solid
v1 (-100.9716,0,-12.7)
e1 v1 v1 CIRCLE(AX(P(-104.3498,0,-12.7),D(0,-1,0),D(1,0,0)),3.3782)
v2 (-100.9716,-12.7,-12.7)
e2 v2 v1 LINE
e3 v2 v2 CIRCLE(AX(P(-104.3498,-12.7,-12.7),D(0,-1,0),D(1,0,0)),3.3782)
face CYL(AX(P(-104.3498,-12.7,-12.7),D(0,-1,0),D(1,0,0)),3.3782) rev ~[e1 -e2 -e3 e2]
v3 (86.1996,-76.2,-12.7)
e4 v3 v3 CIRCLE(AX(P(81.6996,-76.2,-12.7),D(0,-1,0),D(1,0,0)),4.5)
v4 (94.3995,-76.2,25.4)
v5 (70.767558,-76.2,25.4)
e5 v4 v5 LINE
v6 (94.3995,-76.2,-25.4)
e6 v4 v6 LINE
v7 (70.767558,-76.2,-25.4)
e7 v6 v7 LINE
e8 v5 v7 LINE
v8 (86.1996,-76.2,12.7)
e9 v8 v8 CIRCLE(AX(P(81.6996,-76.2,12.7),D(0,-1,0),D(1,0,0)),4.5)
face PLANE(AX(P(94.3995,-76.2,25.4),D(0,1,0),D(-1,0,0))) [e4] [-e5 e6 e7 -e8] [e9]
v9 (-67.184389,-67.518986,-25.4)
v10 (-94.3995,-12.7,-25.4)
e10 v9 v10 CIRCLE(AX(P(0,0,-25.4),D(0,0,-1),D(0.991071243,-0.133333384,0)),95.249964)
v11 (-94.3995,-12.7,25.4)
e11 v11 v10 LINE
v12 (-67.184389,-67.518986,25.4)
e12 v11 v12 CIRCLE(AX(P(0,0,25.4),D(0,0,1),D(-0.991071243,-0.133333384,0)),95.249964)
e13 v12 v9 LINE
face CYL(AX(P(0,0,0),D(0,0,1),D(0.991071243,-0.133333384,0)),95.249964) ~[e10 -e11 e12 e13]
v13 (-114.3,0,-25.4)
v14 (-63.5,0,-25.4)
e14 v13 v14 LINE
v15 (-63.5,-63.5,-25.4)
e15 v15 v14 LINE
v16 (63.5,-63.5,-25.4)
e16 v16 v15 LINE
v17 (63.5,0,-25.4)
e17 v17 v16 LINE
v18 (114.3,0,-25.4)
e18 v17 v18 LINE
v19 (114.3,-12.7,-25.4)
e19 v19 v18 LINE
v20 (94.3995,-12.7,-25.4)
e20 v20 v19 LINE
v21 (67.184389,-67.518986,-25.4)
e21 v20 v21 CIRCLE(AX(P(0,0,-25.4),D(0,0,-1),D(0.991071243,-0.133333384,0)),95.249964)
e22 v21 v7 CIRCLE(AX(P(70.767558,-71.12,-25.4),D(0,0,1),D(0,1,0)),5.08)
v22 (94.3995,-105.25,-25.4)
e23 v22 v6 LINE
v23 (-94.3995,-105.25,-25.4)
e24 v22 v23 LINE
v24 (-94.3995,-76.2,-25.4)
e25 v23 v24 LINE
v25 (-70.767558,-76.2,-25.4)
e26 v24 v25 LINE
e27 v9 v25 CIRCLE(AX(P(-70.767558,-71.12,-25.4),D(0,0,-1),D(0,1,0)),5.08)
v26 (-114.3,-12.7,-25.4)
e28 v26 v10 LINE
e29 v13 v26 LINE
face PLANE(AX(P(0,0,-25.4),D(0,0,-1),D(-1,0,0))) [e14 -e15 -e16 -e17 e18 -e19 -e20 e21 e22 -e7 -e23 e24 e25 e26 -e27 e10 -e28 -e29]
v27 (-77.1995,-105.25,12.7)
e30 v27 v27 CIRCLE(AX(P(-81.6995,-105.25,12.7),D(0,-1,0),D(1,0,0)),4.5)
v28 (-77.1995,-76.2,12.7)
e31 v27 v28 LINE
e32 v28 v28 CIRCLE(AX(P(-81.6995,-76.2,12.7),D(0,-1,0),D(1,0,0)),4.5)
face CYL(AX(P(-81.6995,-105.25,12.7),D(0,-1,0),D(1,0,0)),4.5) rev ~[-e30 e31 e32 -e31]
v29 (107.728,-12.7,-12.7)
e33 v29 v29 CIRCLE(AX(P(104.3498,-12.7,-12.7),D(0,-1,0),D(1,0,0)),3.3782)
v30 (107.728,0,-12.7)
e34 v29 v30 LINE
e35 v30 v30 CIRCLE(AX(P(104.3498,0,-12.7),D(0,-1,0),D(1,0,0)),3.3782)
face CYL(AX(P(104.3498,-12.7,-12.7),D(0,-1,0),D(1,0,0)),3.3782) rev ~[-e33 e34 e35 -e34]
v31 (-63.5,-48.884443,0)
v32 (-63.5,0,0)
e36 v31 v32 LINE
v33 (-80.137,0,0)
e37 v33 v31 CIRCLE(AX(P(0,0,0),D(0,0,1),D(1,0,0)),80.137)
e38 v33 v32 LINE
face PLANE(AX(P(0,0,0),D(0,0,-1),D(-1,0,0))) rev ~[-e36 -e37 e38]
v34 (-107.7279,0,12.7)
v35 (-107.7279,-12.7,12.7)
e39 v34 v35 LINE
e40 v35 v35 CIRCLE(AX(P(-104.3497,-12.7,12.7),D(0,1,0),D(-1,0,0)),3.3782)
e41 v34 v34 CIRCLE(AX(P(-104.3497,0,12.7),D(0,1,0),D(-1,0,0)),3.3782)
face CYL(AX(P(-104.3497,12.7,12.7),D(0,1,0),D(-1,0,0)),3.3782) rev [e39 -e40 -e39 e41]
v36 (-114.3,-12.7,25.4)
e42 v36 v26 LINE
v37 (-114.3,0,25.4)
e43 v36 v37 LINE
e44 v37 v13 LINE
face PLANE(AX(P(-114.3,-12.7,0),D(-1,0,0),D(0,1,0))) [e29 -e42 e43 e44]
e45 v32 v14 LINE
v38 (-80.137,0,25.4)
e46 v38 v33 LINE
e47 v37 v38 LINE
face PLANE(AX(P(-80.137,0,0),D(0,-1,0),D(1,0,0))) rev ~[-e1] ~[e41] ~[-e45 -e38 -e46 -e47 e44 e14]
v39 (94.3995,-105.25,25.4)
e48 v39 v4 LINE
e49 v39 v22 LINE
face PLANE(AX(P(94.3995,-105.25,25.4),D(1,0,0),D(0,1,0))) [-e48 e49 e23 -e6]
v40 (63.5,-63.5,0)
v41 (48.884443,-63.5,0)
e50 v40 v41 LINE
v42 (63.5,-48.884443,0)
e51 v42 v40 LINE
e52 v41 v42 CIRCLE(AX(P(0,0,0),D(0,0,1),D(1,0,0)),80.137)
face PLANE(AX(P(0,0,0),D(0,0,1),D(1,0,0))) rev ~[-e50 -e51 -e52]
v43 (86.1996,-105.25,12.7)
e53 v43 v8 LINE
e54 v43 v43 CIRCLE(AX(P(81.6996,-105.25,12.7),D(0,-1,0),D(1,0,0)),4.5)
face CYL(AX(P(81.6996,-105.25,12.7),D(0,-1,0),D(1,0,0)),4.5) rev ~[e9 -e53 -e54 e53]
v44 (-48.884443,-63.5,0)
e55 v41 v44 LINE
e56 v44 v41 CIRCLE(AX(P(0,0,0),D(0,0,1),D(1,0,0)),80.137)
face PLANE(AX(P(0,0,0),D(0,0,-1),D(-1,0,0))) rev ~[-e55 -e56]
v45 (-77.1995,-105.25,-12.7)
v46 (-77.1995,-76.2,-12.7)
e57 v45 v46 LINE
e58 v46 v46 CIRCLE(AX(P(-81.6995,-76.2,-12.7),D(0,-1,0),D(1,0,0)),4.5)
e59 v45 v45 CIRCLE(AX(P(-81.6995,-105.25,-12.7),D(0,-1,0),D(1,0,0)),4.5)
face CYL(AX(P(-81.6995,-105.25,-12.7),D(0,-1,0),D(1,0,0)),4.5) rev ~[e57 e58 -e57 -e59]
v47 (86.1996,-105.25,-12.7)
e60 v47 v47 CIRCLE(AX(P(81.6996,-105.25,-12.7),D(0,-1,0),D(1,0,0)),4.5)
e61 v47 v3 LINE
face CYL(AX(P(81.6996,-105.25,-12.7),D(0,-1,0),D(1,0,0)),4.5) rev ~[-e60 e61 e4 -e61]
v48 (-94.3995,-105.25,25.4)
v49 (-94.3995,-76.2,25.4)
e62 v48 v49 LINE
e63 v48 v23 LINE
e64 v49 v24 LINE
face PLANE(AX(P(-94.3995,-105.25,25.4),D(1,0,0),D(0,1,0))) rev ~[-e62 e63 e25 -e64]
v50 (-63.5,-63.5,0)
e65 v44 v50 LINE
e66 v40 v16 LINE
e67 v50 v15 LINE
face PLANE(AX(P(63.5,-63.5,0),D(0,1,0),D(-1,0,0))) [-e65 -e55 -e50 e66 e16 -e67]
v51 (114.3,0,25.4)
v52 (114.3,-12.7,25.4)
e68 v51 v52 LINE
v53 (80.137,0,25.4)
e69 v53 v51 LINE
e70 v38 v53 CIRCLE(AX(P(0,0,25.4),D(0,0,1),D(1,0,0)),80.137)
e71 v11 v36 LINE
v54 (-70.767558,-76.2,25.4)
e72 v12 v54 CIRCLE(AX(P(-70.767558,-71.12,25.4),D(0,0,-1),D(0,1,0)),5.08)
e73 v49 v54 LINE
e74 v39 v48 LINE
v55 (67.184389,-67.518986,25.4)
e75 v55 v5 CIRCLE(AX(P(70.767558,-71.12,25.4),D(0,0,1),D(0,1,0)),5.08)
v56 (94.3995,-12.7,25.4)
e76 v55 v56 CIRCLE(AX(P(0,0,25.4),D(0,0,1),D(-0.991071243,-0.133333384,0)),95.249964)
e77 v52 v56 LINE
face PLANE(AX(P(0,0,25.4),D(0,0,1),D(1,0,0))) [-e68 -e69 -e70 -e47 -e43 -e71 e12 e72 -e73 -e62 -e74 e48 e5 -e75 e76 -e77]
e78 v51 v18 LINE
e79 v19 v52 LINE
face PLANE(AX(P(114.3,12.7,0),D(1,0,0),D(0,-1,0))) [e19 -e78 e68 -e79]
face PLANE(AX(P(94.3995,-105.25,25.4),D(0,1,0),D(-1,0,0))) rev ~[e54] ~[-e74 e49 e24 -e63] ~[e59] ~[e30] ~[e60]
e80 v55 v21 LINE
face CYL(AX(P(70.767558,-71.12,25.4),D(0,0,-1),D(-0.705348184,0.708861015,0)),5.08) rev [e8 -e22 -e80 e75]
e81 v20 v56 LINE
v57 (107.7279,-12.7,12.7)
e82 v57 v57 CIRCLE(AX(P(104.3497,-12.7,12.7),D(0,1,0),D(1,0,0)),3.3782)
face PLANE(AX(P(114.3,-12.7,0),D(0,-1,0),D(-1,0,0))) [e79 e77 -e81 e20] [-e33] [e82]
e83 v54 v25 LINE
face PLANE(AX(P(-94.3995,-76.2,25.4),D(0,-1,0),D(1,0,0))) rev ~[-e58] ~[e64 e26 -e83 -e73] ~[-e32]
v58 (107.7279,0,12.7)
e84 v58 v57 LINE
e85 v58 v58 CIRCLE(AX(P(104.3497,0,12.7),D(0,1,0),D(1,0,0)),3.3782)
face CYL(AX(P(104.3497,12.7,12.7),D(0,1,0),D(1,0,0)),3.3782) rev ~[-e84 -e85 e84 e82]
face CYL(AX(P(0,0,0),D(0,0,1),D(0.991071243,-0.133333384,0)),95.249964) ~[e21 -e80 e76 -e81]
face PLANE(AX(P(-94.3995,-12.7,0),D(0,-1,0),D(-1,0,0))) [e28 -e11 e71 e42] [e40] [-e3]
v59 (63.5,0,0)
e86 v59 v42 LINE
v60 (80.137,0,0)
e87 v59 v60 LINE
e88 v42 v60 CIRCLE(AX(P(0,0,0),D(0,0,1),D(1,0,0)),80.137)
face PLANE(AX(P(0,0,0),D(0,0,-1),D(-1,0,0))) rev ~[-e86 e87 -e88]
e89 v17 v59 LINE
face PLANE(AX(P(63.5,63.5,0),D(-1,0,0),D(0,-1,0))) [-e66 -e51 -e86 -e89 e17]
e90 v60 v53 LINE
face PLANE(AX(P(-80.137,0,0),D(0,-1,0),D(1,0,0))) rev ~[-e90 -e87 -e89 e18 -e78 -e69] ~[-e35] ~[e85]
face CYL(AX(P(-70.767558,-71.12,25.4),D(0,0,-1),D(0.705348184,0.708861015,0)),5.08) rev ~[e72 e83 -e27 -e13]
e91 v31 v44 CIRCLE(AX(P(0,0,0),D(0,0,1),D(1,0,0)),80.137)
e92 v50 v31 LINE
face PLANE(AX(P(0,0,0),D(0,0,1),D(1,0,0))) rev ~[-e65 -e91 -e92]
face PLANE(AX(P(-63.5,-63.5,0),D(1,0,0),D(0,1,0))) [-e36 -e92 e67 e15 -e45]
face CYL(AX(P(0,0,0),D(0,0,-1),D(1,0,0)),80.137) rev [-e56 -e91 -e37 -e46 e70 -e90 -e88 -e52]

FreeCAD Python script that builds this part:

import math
import FreeCAD as App
import Part
import Sketcher

V = App.Vector
Q = App.Units.Quantity


def edges_at(feature, points):
    """Names of the edges that pass closest to the given points."""
    edges = feature.Shape.Edges
    near = lambda p: min(range(len(edges)), key=lambda i: edges[i].distToShape(Part.Vertex(*p))[0])
    return sorted({f"Edge{near(p) + 1}" for p in points})

doc = App.newDocument("Part")
body = doc.addObject("PartDesign::Body", "Body")

sketch1 = body.newObject("Sketcher::SketchObject", "Sketch")
sketch1.AttachmentSupport = (doc.getObject("XY_Plane"), [""])
sketch1.MapMode = "FlatFace"
sketch1.addGeometry([
    Part.LineSegment(V(-114, 13, 0), V(-114, -13, 0)),
    Part.LineSegment(V(-114, -13, 0), V(-94, -13, 0)),
    Part.ArcOfCircle(Part.Circle(V(0, 0, 0), V(0, 0, 1), 95), math.radians(-172), math.radians(-8)),
    Part.LineSegment(V(94, -13, 0), V(114, -13, 0)),
    Part.LineSegment(V(114, -13, 0), V(114, 13, 0)),
    Part.LineSegment(V(114, 13, 0), V(94, 13, 0)),
    Part.ArcOfCircle(Part.Circle(V(0, 0, 0), V(0, 0, 1), 95), math.radians(8), math.radians(172)),
    Part.LineSegment(V(-94, 13, 0), V(-114, 13, 0)),
    Part.Circle(V(0, 0, 0), V(0, 0, 1), 80),
], False)
sketch1.addConstraint([
    Sketcher.Constraint("Coincident", 0, 2, 1, 1),
    Sketcher.Constraint("Coincident", 1, 2, 2, 1),
    Sketcher.Constraint("Coincident", 2, 2, 3, 1),
    Sketcher.Constraint("Coincident", 3, 2, 4, 1),
    Sketcher.Constraint("Coincident", 4, 2, 5, 1),
    Sketcher.Constraint("Coincident", 5, 2, 6, 1),
    Sketcher.Constraint("Coincident", 6, 2, 7, 1),
    Sketcher.Constraint("Coincident", 7, 2, 0, 1),
    Sketcher.Constraint("Vertical", 0),
    Sketcher.Constraint("Horizontal", 1),
    Sketcher.Constraint("Horizontal", 3),
    Sketcher.Constraint("Vertical", 4),
    Sketcher.Constraint("Horizontal", 5),
    Sketcher.Constraint("Horizontal", 7),
    Sketcher.Constraint("Coincident", 2, 3, -1, 1),
    Sketcher.Constraint("Coincident", 6, 3, -1, 1),
    Sketcher.Constraint("Coincident", 8, 3, -1, 1),
    Sketcher.Constraint("Equal", 2, 6),
    Sketcher.Constraint("Symmetric", 0, 2, 4, 2, -1, 1),
    Sketcher.Constraint("Horizontal", 1, 2, 2, 2),
    Sketcher.Constraint("Horizontal", 5, 2, 6, 2),
    Sketcher.Constraint("Diameter", 8, Q("6.31 in")),
    Sketcher.Constraint("DistanceY", 0, 2, 0, 1, Q("1 in")),
    Sketcher.Constraint("Radius", 2, Q("3.75 in")),
    Sketcher.Constraint("DistanceX", 0, 2, -1, 1, Q("4.5 in")),
])
pad1 = body.newObject("PartDesign::Pad", "Pad")
pad1.Profile = sketch1
pad1.Length = Q("1 in")

sketch2 = body.newObject("Sketcher::SketchObject", "Sketch001")
sketch2.AttachmentSupport = (doc.getObject("XZ_Plane"), [""])
sketch2.MapMode = "FlatFace"
sketch2.AttachmentOffset = App.Placement(V(0, 0, -0.5 * 25.4), App.Rotation())
sketch2.addGeometry(Part.Circle(V(104.3, 12.7, 0), V(0, 0, 1), 3.4), False)
sketch2.addConstraint([
    Sketcher.Constraint("Diameter", 0, Q("0.266 in")),
    Sketcher.Constraint("DistanceY", -1, 1, 0, 3, Q("0.5 in")),
    Sketcher.Constraint("DistanceX", -1, 1, 0, 3, Q("104.3497 mm")),
])
pocket1 = body.newObject("PartDesign::Pocket", "Pocket")
pocket1.Profile = sketch2
pocket1.Length = Q("1.5 in")
pocket1.Reversed = True
doc.recompute()

mirrored = body.newObject("PartDesign::Mirrored", "Mirrored")
mirrored.Originals = [pocket1]
mirrored.MirrorPlane = (doc.getObject("YZ_Plane"), [""])
body.Tip = mirrored

sketch3 = body.newObject("Sketcher::SketchObject", "Sketch002")
sketch3.AttachmentSupport = (doc.getObject("XY_Plane"), [""])
sketch3.MapMode = "FlatFace"
sketch3.AttachmentOffset = App.Placement(V(0, 0, 1 * 25.4), App.Rotation())
sketch3.addGeometry([
    Part.LineSegment(V(-114, 0, 0), V(114, 0, 0)),
    Part.LineSegment(V(114, 0, 0), V(114, 13, 0)),
    Part.LineSegment(V(114, 13, 0), V(94, 13, 0)),
    Part.LineSegment(V(94, 13, 0), V(94, 94, 0)),
    Part.LineSegment(V(94, 94, 0), V(13, 94, 0)),
    Part.ArcOfCircle(Part.Circle(V(0, 0, 0), V(0, 0, 1), 95), math.radians(82.34), math.radians(97.66)),
    Part.LineSegment(V(-13, 94, 0), V(-94, 94, 0)),
    Part.LineSegment(V(-94, 94, 0), V(-94, 13, 0)),
    Part.LineSegment(V(-94, 13, 0), V(-114, 13, 0)),
    Part.LineSegment(V(-114, 13, 0), V(-114, 0, 0)),
], False)
sketch3.addConstraint([
    Sketcher.Constraint("Coincident", 0, 2, 1, 1),
    Sketcher.Constraint("Coincident", 1, 2, 2, 1),
    Sketcher.Constraint("Coincident", 2, 2, 3, 1),
    Sketcher.Constraint("Coincident", 3, 2, 4, 1),
    Sketcher.Constraint("Coincident", 4, 2, 5, 1),
    Sketcher.Constraint("Coincident", 5, 2, 6, 1),
    Sketcher.Constraint("Coincident", 6, 2, 7, 1),
    Sketcher.Constraint("Coincident", 7, 2, 8, 1),
    Sketcher.Constraint("Coincident", 8, 2, 9, 1),
    Sketcher.Constraint("Coincident", 9, 2, 0, 1),
    Sketcher.Constraint("Horizontal", 0),
    Sketcher.Constraint("Vertical", 1),
    Sketcher.Constraint("Horizontal", 2),
    Sketcher.Constraint("Vertical", 3),
    Sketcher.Constraint("Horizontal", 4),
    Sketcher.Constraint("Horizontal", 6),
    Sketcher.Constraint("Vertical", 7),
    Sketcher.Constraint("Horizontal", 8),
    Sketcher.Constraint("Vertical", 9),
    Sketcher.Constraint("Coincident", 5, 3, -1, 1),
    Sketcher.Constraint("Symmetric", 0, 2, 9, 2, -1, 1),
    Sketcher.Constraint("Symmetric", 3, 2, 6, 2, -2),
    Sketcher.Constraint("Horizontal", 2, 2, 7, 2),
    Sketcher.Constraint("Equal", 6, 3),
    Sketcher.Constraint("DistanceX", 0, 1, 0, 2, Q("9 in")),
    Sketcher.Constraint("Radius", 5, Q("3.75 in")),
    Sketcher.Constraint("DistanceY", 1, 1, 1, 2, Q("0.5 in")),
    Sketcher.Constraint("DistanceX", 4, 2, 1, 2, Q("4 in")),
])
pocket2 = body.newObject("PartDesign::Pocket", "Pocket001")
pocket2.Profile = sketch3
pocket2.Length = Q("1 in")

sketch4 = body.newObject("Sketcher::SketchObject", "Sketch003")
sketch4.AttachmentSupport = (doc.getObject("XY_Plane"), [""])
sketch4.MapMode = "FlatFace"
sketch4.addGeometry([
    Part.Circle(V(0, 0, 0), V(0, 0, 1), 95),
    Part.LineSegment(V(-64, -64, 0), V(64, -64, 0)),
    Part.LineSegment(V(64, -64, 0), V(64, 64, 0)),
    Part.LineSegment(V(64, 64, 0), V(-64, 64, 0)),
    Part.LineSegment(V(-64, 64, 0), V(-64, -64, 0)),
], False)
sketch4.addConstraint([
    Sketcher.Constraint("Coincident", 1, 2, 2, 1),
    Sketcher.Constraint("Coincident", 2, 2, 3, 1),
    Sketcher.Constraint("Coincident", 3, 2, 4, 1),
    Sketcher.Constraint("Coincident", 4, 2, 1, 1),
    Sketcher.Constraint("Horizontal", 1),
    Sketcher.Constraint("Vertical", 2),
    Sketcher.Constraint("Horizontal", 3),
    Sketcher.Constraint("Vertical", 4),
    Sketcher.Constraint("Coincident", 0, 3, -1, 1),
    Sketcher.Constraint("Symmetric", 1, 2, 3, 2, -1, 1),
    Sketcher.Constraint("Equal", 3, 2),
    Sketcher.Constraint("DistanceX", 1, 1, 1, 2, Q("5 in")),
    Sketcher.Constraint("Diameter", 0, Q("7.5 in")),
])
pad2 = body.newObject("PartDesign::Pad", "Pad001")
pad2.Profile = sketch4
pad2.Length = Q("1 in")
pad2.Reversed = True

sketch5 = body.newObject("Sketcher::SketchObject", "Sketch004")
sketch5.AttachmentSupport = (doc.getObject("XY_Plane"), [""])
sketch5.MapMode = "FlatFace"
sketch5.addGeometry([
    Part.LineSegment(V(-114, 0, 0), V(111, 0, 0)),
    Part.LineSegment(V(111, 0, 0), V(111, 105, 0)),
    Part.LineSegment(V(111, 105, 0), V(-114, 105, 0)),
    Part.LineSegment(V(-114, 105, 0), V(-114, 0, 0)),
], False)
sketch5.addConstraint([
    Sketcher.Constraint("Coincident", 0, 2, 1, 1),
    Sketcher.Constraint("Coincident", 1, 2, 2, 1),
    Sketcher.Constraint("Coincident", 2, 2, 3, 1),
    Sketcher.Constraint("Coincident", 3, 2, 0, 1),
    Sketcher.Constraint("Horizontal", 0),
    Sketcher.Constraint("Vertical", 1),
    Sketcher.Constraint("Horizontal", 2),
    Sketcher.Constraint("Vertical", 3),
    Sketcher.Constraint("PointOnObject", 0, 2, -1),
    Sketcher.Constraint("DistanceX", 2, 2, -1, 1, Q("4.5 in")),
    Sketcher.Constraint("DistanceX", 0, 1, 0, 2, Q("8.875 in")),
    Sketcher.Constraint("DistanceY", 1, 1, 1, 2, Q("4.125 in")),
])
pocket3 = body.newObject("PartDesign::Pocket", "Pocket002")
pocket3.Profile = sketch5
pocket3.Length = Q("1 in")

sketch6 = body.newObject("Sketcher::SketchObject", "Sketch005")
sketch6.AttachmentSupport = (doc.getObject("XY_Plane"), [""])
sketch6.MapMode = "FlatFace"
sketch6.AttachmentOffset = App.Placement(V(0, 0, 1 * 25.4), App.Rotation())
sketch6.addGeometry([
    Part.LineSegment(V(-94, -105, 0), V(94, -105, 0)),
    Part.LineSegment(V(94, -105, 0), V(94, -76, 0)),
    Part.LineSegment(V(94, -76, 0), V(57, -76, 0)),
    Part.ArcOfCircle(Part.Circle(V(0, 0, 0), V(0, 0, 1), 95), math.radians(-127), math.radians(-53)),
    Part.LineSegment(V(-57, -76, 0), V(-94, -76, 0)),
    Part.LineSegment(V(-94, -76, 0), V(-94, -105, 0)),
], False)
sketch6.addConstraint([
    Sketcher.Constraint("Coincident", 0, 2, 1, 1),
    Sketcher.Constraint("Coincident", 1, 2, 2, 1),
    Sketcher.Constraint("Coincident", 2, 2, 3, 2),
    Sketcher.Constraint("Coincident", 3, 1, 4, 1),
    Sketcher.Constraint("Coincident", 4, 2, 5, 1),
    Sketcher.Constraint("Coincident", 5, 2, 0, 1),
    Sketcher.Constraint("Horizontal", 0),
    Sketcher.Constraint("Vertical", 1),
    Sketcher.Constraint("Horizontal", 2),
    Sketcher.Constraint("Horizontal", 4),
    Sketcher.Constraint("Vertical", 5),
    Sketcher.Constraint("Coincident", 3, 3, -1, 1),
    Sketcher.Constraint("Symmetric", 1, 2, 4, 2, -2),
    Sketcher.Constraint("Radius", 3, Q("3.75 in")),
    Sketcher.Constraint("DistanceY", 1, 2, -1, 1, Q("3 in")),
    Sketcher.Constraint("DistanceY", 1, 1, 1, 2, Q("1.1437 in")),
    Sketcher.Constraint("DistanceX", 0, 1, 0, 2, Q("188.799 mm")),
])
pad3 = body.newObject("PartDesign::Pad", "Pad002")
pad3.Profile = sketch6
pad3.Length = Q("2 in")
pad3.Reversed = True
doc.recompute()

fillet = body.newObject("PartDesign::Fillet", "Fillet")
fillet.Base = (pad3, edges_at(pad3, [
    (-57.15, -76.2, 12.7),
    (-57.15, -76.2, -12.7),
    (57.15, -76.2, 12.7),
    (57.15, -76.2, -12.7),
]))
fillet.Radius = Q("0.2 in")

sketch7 = body.newObject("Sketcher::SketchObject", "Sketch006")
sketch7.AttachmentSupport = (doc.getObject("XZ_Plane"), [""])
sketch7.MapMode = "FlatFace"
sketch7.AttachmentOffset = App.Placement(V(0, 0, 4.1437008 * 25.4), App.Rotation())
sketch7.addGeometry([
    Part.Circle(V(-81.7, -12.7, 0), V(0, 0, 1), 4.5),
    Part.Circle(V(-81.7, 12.7, 0), V(0, 0, 1), 4.5),
    Part.Circle(V(81.7, -12.7, 0), V(0, 0, 1), 4.5),
    Part.Circle(V(81.7, 12.7, 0), V(0, 0, 1), 4.5),
], False)
sketch7.addConstraint([
    Sketcher.Constraint("Equal", 0, 1),
    Sketcher.Constraint("Equal", 1, 2),
    Sketcher.Constraint("Equal", 2, 3),
    Sketcher.Constraint("Symmetric", 1, 3, 2, 3, -1, 1),
    Sketcher.Constraint("Symmetric", 0, 3, 3, 3, -1, 1),
    Sketcher.Constraint("Symmetric", 0, 3, 2, 3, -2),
    Sketcher.Constraint("DistanceY", 0, 3, -1, 1, Q("0.5 in")),
    Sketcher.Constraint("Diameter", 0, Q("9 mm")),
    Sketcher.Constraint("DistanceX", 0, 3, -1, 1, Q("81.6995 mm")),
])
pocket4 = body.newObject("PartDesign::Pocket", "Pocket003")
pocket4.Profile = sketch7
pocket4.Length = Q("1.1437008 in")

sketch8 = body.newObject("Sketcher::SketchObject", "Sketch007")
sketch8.AttachmentSupport = (doc.getObject("XY_Plane"), [""])
sketch8.MapMode = "FlatFace"
sketch8.addGeometry([
    Part.ArcOfCircle(Part.Circle(V(0, 0, 0), V(0, 0, 1), 95), math.radians(-7.66), math.radians(0)),
    Part.LineSegment(V(95, 0, 0), V(114, 0, 0)),
    Part.LineSegment(V(114, 0, 0), V(114, -13, 0)),
    Part.LineSegment(V(114, -13, 0), V(94, -13, 0)),
    Part.ArcOfCircle(Part.Circle(V(0, 0, 0), V(0, 0, 1), 95), math.radians(-180), math.radians(-172.34)),
    Part.LineSegment(V(-94, -13, 0), V(-114, -13, 0)),
    Part.LineSegment(V(-114, -13, 0), V(-114, 0, 0)),
    Part.LineSegment(V(-114, 0, 0), V(-95, 0, 0)),
], False)
sketch8.addConstraint([
    Sketcher.Constraint("Coincident", 0, 2, 1, 1),
    Sketcher.Constraint("Coincident", 1, 2, 2, 1),
    Sketcher.Constraint("Coincident", 2, 2, 3, 1),
    Sketcher.Constraint("Coincident", 3, 2, 0, 1),
    Sketcher.Constraint("Coincident", 4, 2, 5, 1),
    Sketcher.Constraint("Coincident", 5, 2, 6, 1),
    Sketcher.Constraint("Coincident", 6, 2, 7, 1),
    Sketcher.Constraint("Coincident", 7, 2, 4, 1),
    Sketcher.Constraint("Horizontal", 1),
    Sketcher.Constraint("Vertical", 2),
    Sketcher.Constraint("Horizontal", 3),
    Sketcher.Constraint("Horizontal", 5),
    Sketcher.Constraint("Vertical", 6),
    Sketcher.Constraint("Horizontal", 7),
    Sketcher.Constraint("Symmetric", 1, 2, 6, 2, -1, 1),
    Sketcher.Constraint("Symmetric", 3, 2, 4, 2, -2),
    Sketcher.Constraint("Symmetric", 0, 2, 7, 2, -2),
    Sketcher.Constraint("Vertical", 0, 3, 4, 3),
    Sketcher.Constraint("DistanceY", 2, 2, 2, 1, Q("0.5 in")),
    Sketcher.Constraint("DistanceY", 0, 3, -1, 1, Q("0 in")),
    Sketcher.Constraint("DistanceX", 1, 1, 1, 2, Q("0.75 in")),
    Sketcher.Constraint("DistanceX", -1, 1, 1, 2, Q("4.5 in")),
    Sketcher.Constraint("Radius", 0, Q("95.242 mm")),
])
pad4 = body.newObject("PartDesign::Pad", "Pad003")
pad4.Profile = sketch8
pad4.Length = Q("1 in")
pad4.Reversed = True

sketch9 = body.newObject("Sketcher::SketchObject", "Sketch008")
sketch9.AttachmentSupport = (doc.getObject("XZ_Plane"), [""])
sketch9.MapMode = "FlatFace"
sketch9.AttachmentOffset = App.Placement(V(0, 0, 0.5 * 25.4), App.Rotation())
sketch9.addGeometry([
    Part.Circle(V(-104.3, -12.7, 0), V(0, 0, 1), 3.4),
    Part.Circle(V(104.3, -12.7, 0), V(0, 0, 1), 3.4),
], False)
sketch9.addConstraint([
    Sketcher.Constraint("Equal", 0, 1),
    Sketcher.Constraint("Symmetric", 0, 3, 1, 3, -2),
    Sketcher.Constraint("Diameter", 0, Q("0.266 in")),
    Sketcher.Constraint("DistanceY", 0, 3, -1, 1, Q("0.5 in")),
    Sketcher.Constraint("DistanceX", 0, 3, -1, 1, Q("104.3498 mm")),
])
pocket5 = body.newObject("PartDesign::Pocket", "Pocket004")
pocket5.Profile = sketch9
pocket5.Length = Q("1 in")

doc.recompute()
